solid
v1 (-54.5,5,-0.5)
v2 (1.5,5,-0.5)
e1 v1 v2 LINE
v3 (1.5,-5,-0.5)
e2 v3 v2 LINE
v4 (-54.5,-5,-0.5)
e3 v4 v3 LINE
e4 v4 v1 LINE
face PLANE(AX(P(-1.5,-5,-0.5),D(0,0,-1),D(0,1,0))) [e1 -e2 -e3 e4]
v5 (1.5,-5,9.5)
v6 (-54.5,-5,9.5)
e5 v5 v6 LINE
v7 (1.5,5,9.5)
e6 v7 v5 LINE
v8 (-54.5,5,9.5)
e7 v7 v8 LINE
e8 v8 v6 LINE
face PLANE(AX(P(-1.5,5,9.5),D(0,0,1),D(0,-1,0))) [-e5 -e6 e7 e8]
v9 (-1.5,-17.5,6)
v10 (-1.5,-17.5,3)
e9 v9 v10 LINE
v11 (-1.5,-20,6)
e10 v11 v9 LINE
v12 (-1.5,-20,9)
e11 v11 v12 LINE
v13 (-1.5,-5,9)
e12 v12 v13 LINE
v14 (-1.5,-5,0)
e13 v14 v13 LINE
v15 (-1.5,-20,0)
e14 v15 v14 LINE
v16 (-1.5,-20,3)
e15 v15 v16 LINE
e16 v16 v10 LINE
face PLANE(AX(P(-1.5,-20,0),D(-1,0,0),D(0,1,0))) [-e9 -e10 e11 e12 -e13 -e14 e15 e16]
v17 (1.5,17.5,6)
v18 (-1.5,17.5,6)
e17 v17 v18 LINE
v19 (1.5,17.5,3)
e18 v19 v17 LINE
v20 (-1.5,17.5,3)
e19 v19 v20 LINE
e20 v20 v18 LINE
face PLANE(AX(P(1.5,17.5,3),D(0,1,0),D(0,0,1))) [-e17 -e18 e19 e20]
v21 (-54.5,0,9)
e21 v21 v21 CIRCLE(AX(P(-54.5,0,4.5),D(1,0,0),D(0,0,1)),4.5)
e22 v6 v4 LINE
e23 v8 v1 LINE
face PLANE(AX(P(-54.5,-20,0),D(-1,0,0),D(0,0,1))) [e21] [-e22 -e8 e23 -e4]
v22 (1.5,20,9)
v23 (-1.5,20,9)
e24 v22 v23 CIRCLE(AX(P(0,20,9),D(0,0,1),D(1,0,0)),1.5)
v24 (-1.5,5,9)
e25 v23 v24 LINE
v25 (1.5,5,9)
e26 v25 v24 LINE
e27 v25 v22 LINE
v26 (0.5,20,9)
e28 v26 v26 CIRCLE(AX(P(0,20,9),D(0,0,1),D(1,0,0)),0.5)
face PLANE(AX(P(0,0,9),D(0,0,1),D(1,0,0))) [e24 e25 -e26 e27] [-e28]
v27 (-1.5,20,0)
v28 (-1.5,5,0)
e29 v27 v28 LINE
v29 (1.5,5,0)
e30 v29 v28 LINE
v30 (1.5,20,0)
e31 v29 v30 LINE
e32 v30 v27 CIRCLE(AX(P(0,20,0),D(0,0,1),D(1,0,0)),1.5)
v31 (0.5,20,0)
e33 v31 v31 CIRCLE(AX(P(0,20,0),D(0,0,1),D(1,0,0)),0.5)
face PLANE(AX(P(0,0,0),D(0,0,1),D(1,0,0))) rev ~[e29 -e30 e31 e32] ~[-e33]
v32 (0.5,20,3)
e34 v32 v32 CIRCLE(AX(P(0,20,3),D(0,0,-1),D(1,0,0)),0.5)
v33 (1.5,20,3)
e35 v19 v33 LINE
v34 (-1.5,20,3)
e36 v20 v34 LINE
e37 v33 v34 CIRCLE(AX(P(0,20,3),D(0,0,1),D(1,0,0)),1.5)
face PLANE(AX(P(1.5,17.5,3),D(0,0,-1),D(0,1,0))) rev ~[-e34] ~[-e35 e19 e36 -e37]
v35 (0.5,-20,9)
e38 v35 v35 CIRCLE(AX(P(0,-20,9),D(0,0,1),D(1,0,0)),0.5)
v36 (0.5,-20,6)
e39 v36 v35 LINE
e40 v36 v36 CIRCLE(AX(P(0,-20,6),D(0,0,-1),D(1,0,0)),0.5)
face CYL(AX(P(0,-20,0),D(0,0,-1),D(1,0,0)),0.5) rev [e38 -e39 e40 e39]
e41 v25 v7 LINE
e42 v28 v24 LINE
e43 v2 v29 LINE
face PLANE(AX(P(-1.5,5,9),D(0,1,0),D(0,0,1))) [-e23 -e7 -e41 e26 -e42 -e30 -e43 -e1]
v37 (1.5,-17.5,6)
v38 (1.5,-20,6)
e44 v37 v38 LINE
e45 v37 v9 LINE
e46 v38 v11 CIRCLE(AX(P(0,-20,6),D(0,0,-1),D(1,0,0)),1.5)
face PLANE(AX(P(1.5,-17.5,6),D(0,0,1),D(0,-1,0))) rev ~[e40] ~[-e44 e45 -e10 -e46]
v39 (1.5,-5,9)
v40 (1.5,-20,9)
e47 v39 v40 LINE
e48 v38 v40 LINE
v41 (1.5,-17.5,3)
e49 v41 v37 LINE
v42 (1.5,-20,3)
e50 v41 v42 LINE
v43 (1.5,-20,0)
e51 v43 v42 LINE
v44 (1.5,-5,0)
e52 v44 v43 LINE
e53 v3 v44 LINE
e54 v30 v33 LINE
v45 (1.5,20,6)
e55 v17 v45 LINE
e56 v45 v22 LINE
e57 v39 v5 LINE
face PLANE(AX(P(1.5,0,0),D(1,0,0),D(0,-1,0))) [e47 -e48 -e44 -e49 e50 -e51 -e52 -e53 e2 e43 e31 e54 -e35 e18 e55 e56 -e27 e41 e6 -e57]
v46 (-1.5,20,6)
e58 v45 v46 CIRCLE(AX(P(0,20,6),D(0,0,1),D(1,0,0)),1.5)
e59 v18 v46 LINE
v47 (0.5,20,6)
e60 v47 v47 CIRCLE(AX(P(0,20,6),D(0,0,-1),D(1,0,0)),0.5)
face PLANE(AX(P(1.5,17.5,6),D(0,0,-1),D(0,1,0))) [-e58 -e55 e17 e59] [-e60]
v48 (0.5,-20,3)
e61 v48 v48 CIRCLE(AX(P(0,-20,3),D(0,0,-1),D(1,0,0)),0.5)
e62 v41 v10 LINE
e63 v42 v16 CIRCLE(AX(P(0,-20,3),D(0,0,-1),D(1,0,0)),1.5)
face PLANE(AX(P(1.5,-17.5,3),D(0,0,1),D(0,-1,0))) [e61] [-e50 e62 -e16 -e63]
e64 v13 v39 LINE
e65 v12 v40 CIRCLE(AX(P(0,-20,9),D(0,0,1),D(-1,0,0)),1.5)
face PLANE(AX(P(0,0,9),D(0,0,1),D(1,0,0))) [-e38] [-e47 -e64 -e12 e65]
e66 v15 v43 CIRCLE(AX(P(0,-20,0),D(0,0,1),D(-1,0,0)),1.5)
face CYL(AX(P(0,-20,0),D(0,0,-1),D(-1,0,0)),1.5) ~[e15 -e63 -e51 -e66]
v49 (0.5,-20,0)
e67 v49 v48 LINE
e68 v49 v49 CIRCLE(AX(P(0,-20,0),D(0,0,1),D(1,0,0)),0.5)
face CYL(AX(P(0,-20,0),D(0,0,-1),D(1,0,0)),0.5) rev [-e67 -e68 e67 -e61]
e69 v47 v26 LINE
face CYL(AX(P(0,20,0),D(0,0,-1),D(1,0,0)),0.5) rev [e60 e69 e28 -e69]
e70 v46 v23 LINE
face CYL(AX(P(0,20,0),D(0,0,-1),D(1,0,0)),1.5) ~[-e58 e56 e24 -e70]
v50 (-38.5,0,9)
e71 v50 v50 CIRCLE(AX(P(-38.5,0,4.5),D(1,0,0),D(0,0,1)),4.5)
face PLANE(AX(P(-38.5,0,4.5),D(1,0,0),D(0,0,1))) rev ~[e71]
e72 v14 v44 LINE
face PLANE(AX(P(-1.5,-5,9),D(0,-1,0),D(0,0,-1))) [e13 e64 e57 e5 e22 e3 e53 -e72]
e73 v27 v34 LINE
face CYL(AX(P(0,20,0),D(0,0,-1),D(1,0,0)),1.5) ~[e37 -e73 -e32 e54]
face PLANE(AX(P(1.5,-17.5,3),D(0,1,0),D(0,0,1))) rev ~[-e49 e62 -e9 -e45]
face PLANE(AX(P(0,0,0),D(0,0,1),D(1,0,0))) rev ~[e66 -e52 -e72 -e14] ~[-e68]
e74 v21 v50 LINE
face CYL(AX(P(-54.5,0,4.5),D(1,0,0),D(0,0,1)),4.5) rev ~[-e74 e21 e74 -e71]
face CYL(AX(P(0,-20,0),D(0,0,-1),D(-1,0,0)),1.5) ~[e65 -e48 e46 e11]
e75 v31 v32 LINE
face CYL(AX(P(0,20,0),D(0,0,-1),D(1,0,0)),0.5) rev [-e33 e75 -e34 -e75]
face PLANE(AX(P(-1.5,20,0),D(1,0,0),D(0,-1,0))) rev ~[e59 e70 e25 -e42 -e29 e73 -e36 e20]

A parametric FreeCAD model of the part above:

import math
import FreeCAD as App
import Part
import Sketcher

doc = App.newDocument("Part")
body = doc.addObject("PartDesign::Body", "Body")

# Sketch on XY plane
sketch1 = body.newObject("Sketcher::SketchObject", "Sketch")
sketch1.AttachmentSupport = (doc.getObject("XY_Plane"), [""])
sketch1.MapMode = "FlatFace"
sketch1.addGeometry([
    Part.LineSegment(App.Vector(1.5, -20, 0), App.Vector(1.5, 20, 0)),  # 0
    Part.ArcOfCircle(Part.Circle(App.Vector(0, 20, 0), App.Vector(0, 0, 1), 1.5), math.radians(0), math.radians(180)),  # 1
    Part.LineSegment(App.Vector(-1.5, 20, 0), App.Vector(-1.5, -20, 0)),  # 2
    Part.ArcOfCircle(Part.Circle(App.Vector(0, -20, 0), App.Vector(0, 0, 1), 1.5), math.radians(180), math.radians(360)),  # 3
    Part.Circle(App.Vector(0, -20, 0), App.Vector(0, 0, 1), 0.5),  # 4
    Part.Circle(App.Vector(0, 20, 0), App.Vector(0, 0, 1), 0.5),  # 5
], False)
sketch1.addConstraint([
    Sketcher.Constraint("Tangent", 0, 2, 1, 1),
    Sketcher.Constraint("Tangent", 1, 2, 2, 1),
    Sketcher.Constraint("Tangent", 2, 2, 3, 1),
    Sketcher.Constraint("Tangent", 3, 2, 0, 1),
    Sketcher.Constraint("Vertical", 0),
    Sketcher.Constraint("Vertical", 2),
    Sketcher.Constraint("Coincident", 4, 3, 3, 3),
    Sketcher.Constraint("Coincident", 5, 3, 1, 3),
    Sketcher.Constraint("Equal", 4, 5),
    Sketcher.Constraint("Symmetric", 1, 3, 3, 3, -1, 1),
    Sketcher.Constraint("Diameter", 4, 1.0),
    Sketcher.Constraint("Radius", 1, 1.5),
    Sketcher.Constraint("DistanceY", 0, 1, 0, 2, 40.0),
])
pad1 = body.newObject("PartDesign::Pad", "Pad")
pad1.Profile = sketch1
pad1.Length = 9

# Sketch on YZ plane
sketch2 = body.newObject("Sketcher::SketchObject", "Sketch001")
sketch2.AttachmentSupport = (doc.getObject("YZ_Plane"), [""])
sketch2.MapMode = "FlatFace"
sketch2.AttachmentOffset = App.Placement(App.Vector(0, 0, -1.5), App.Rotation())
sketch2.addGeometry([
    Part.LineSegment(App.Vector(-5, 10, 0), App.Vector(5, 10, 0)),
    Part.LineSegment(App.Vector(5, 10, 0), App.Vector(5, 0, 0)),
    Part.LineSegment(App.Vector(5, 0, 0), App.Vector(-5, 0, 0)),
    Part.LineSegment(App.Vector(-5, 0, 0), App.Vector(-5, 10, 0)),
], False)
sketch2.addConstraint([
    Sketcher.Constraint("Coincident", 0, 2, 1, 1),
    Sketcher.Constraint("Coincident", 1, 2, 2, 1),
    Sketcher.Constraint("Coincident", 2, 2, 3, 1),
    Sketcher.Constraint("Coincident", 3, 2, 0, 1),
    Sketcher.Constraint("Horizontal", 0),
    Sketcher.Constraint("Vertical", 1),
    Sketcher.Constraint("Horizontal", 2),
    Sketcher.Constraint("Vertical", 3),
    Sketcher.Constraint("Equal", 2, 1),
    Sketcher.Constraint("DistanceX", 0, 1, 0, 2, 10.0),
    Sketcher.Constraint("DistanceX", -1, 1, 0, 2, 5.0),
    Sketcher.Constraint("DistanceY", -1, 1, 0, 2, 9.5),
])
pad2 = body.newObject("PartDesign::Pad", "Pad001")
pad2.Profile = sketch2
pad2.Type = "TwoLengths"
pad2.Length = 53
pad2.Length2 = 3
pad2.Reversed = True

# Sketch on YZ plane
sketch3 = body.newObject("Sketcher::SketchObject", "Sketch002")
sketch3.AttachmentSupport = (doc.getObject("YZ_Plane"), [""])
sketch3.MapMode = "FlatFace"
sketch3.AttachmentOffset = App.Placement(App.Vector(0, 0, -54.5), App.Rotation())
sketch3.addGeometry(Part.Circle(App.Vector(0, 4.5, 0), App.Vector(0, 0, 1), 4.5), False)
sketch3.addConstraint([
    Sketcher.Constraint("PointOnObject", 0, 3, -2),
    Sketcher.Constraint("Diameter", 0, 9.0),
    Sketcher.Constraint("DistanceY", -1, 1, 0, 3, 4.5),
])
doc.recompute()
hole = body.newObject("PartDesign::Hole", "Hole")
hole.Profile = sketch3
hole.ThreadType = "None"
hole.Diameter = 9
hole.DepthType = "Dimension"
hole.Depth = 16
hole.DrillPoint = "Flat"
hole.Reversed = True

# Sketch on YZ plane
sketch4 = body.newObject("Sketcher::SketchObject", "Sketch003")
sketch4.AttachmentSupport = (doc.getObject("YZ_Plane"), [""])
sketch4.MapMode = "FlatFace"
sketch4.AttachmentOffset = App.Placement(App.Vector(0, 0, 1.5), App.Rotation())
sketch4.addGeometry([
    Part.LineSegment(App.Vector(-21.5, 3, 0), App.Vector(-17.5, 3, 0)),  # 0
    Part.LineSegment(App.Vector(-17.5, 3, 0), App.Vector(-17.5, 6, 0)),  # 1
    Part.LineSegment(App.Vector(-17.5, 6, 0), App.Vector(-21.5, 6, 0)),  # 2
    Part.LineSegment(App.Vector(-21.5, 6, 0), App.Vector(-21.5, 3, 0)),  # 3
    Part.LineSegment(App.Vector(17.5, 6, 0), App.Vector(17.5, 3, 0)),  # 4
    Part.LineSegment(App.Vector(17.5, 3, 0), App.Vector(21.5, 3, 0)),  # 5
    Part.LineSegment(App.Vector(21.5, 3, 0), App.Vector(21.5, 6, 0)),  # 6
    Part.LineSegment(App.Vector(21.5, 6, 0), App.Vector(17.5, 6, 0)),  # 7
], False)
sketch4.addConstraint([
    Sketcher.Constraint("Coincident", 0, 2, 1, 1),
    Sketcher.Constraint("Coincident", 1, 2, 2, 1),
    Sketcher.Constraint("Coincident", 2, 2, 3, 1),
    Sketcher.Constraint("Coincident", 3, 2, 0, 1),
    Sketcher.Constraint("Coincident", 4, 2, 5, 1),
    Sketcher.Constraint("Coincident", 5, 2, 6, 1),
    Sketcher.Constraint("Coincident", 6, 2, 7, 1),
    Sketcher.Constraint("Coincident", 7, 2, 4, 1),
    Sketcher.Constraint("Horizontal", 0),
    Sketcher.Constraint("Vertical", 1),
    Sketcher.Constraint("Horizontal", 2),
    Sketcher.Constraint("Vertical", 3),
    Sketcher.Constraint("Vertical", 4),
    Sketcher.Constraint("Horizontal", 5),
    Sketcher.Constraint("Vertical", 6),
    Sketcher.Constraint("Horizontal", 7),
    Sketcher.Constraint("Symmetric", 0, 2, 4, 2, -2),
    Sketcher.Constraint("Symmetric", 2, 2, 6, 2, -2),
    Sketcher.Constraint("DistanceX", 0, 1, 0, 2, 4.0),
    Sketcher.Constraint("DistanceY", 1, 1, 1, 2, 3.0),
    Sketcher.Constraint("DistanceY", -1, 1, 0, 2, 3.0),
    Sketcher.Constraint("DistanceX", 0, 2, 4, 2, 35.0),
])
pocket1 = body.newObject("PartDesign::Pocket", "Pocket")
pocket1.Profile = sketch4
pocket1.Type = "ThroughAll"

doc.recompute()
